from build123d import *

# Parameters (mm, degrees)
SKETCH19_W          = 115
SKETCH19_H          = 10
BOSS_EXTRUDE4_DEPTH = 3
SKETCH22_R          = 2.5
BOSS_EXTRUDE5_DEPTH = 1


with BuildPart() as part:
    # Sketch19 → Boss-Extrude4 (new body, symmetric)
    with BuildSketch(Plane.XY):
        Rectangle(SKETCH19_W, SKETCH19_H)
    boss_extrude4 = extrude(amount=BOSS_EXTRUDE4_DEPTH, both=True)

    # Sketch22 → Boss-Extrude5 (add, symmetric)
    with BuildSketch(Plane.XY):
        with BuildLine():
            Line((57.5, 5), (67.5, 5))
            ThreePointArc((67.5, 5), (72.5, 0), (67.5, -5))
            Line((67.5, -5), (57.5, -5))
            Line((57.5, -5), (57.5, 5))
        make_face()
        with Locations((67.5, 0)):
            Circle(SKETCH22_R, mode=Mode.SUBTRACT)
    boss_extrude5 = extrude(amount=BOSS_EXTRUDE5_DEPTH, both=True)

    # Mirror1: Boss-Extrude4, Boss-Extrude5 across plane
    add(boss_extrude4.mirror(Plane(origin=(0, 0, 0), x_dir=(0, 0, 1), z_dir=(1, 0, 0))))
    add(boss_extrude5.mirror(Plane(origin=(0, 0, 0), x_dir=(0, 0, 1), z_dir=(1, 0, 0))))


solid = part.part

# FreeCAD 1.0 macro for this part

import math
import FreeCAD as App
import Part
import Sketcher
from FreeCAD import Vector


def add_polygon(sketch, points):
    """Adds a closed chain of lines whose ends are joined by coincident constraints."""
    first, n = sketch.GeometryCount, len(points)
    for a, b in zip(points, points[1:] + points[:1]):
        sketch.addGeometry(Part.LineSegment(App.Vector(*a, 0), App.Vector(*b, 0)), False)
    for i in range(n):
        sketch.addConstraint(Sketcher.Constraint("Coincident", first + i, 2, first + (i + 1) % n, 1))

doc = App.newDocument("Part")
body = doc.addObject("PartDesign::Body", "Body")

# Sketch on XY plane
sketch1 = body.newObject("Sketcher::SketchObject", "Sketch")
sketch1.AttachmentSupport = (doc.getObject("XY_Plane"), [""])
sketch1.MapMode = "FlatFace"
add_polygon(sketch1, [(-58, 5), (-58, -5), (58, -5), (58, 5)])  # lines 0-3
sketch1.addConstraint([
    Sketcher.Constraint("Vertical", 0),
    Sketcher.Constraint("Horizontal", 1),
    Sketcher.Constraint("Vertical", 2),
    Sketcher.Constraint("Horizontal", 3),
    Sketcher.Constraint("Symmetric", 0, 2, 2, 2, -1, 1),
    Sketcher.Constraint("DistanceX", 1, 1, 1, 2, 115.0),
    Sketcher.Constraint("DistanceY", 0, 2, 0, 1, 10.0),
])
pad1 = body.newObject("PartDesign::Pad", "Pad")
pad1.Profile = sketch1
pad1.Length = 6
pad1.Midplane = True

# Sketch on XY plane
sketch2 = body.newObject("Sketcher::SketchObject", "Sketch001")
sketch2.AttachmentSupport = (doc.getObject("XY_Plane"), [""])
sketch2.MapMode = "FlatFace"
sketch2.addGeometry([
    Part.LineSegment(Vector(67.5, 5, 0), Vector(57.5, 5, 0)),  # 0
    Part.LineSegment(Vector(57.5, 5, 0), Vector(57.5, -5, 0)),  # 1
    Part.LineSegment(Vector(57.5, -5, 0), Vector(67.5, -5, 0)),  # 2
    Part.ArcOfCircle(Part.Circle(Vector(67.5, 0, 0), Vector(0, 0, 1), 5), math.radians(-90), math.radians(90)),  # 3
    Part.Circle(Vector(67.5, 0, 0), Vector(0, 0, 1), 2.5),  # 4
], False)
sketch2.addConstraint([
    Sketcher.Constraint("Coincident", 0, 2, 1, 1),
    Sketcher.Constraint("Coincident", 1, 2, 2, 1),
    Sketcher.Constraint("Tangent", 2, 2, 3, 1),
    Sketcher.Constraint("Tangent", 3, 2, 0, 1),
    Sketcher.Constraint("Horizontal", 0),
    Sketcher.Constraint("Vertical", 1),
    Sketcher.Constraint("Horizontal", 2),
    Sketcher.Constraint("Coincident", 4, 3, 3, 3),
    Sketcher.Constraint("PointOnObject", 3, 3, -1),
    Sketcher.Constraint("Equal", 2, 1),
    Sketcher.Constraint("Diameter", 4, 5.0),
    Sketcher.Constraint("Radius", 3, 5.0),
    Sketcher.Constraint("DistanceX", -1, 1, 3, 3, 67.5),
])
pad2 = body.newObject("PartDesign::Pad", "Pad001")
pad2.Profile = sketch2
pad2.Length = 2
pad2.Midplane = True
doc.recompute()

mirrored = body.newObject("PartDesign::Mirrored", "Mirrored")
mirrored.Originals = [pad1, pad2]
mirrored.MirrorPlane = (doc.getObject("YZ_Plane"), [""])
body.Tip = mirrored

doc.recompute()
